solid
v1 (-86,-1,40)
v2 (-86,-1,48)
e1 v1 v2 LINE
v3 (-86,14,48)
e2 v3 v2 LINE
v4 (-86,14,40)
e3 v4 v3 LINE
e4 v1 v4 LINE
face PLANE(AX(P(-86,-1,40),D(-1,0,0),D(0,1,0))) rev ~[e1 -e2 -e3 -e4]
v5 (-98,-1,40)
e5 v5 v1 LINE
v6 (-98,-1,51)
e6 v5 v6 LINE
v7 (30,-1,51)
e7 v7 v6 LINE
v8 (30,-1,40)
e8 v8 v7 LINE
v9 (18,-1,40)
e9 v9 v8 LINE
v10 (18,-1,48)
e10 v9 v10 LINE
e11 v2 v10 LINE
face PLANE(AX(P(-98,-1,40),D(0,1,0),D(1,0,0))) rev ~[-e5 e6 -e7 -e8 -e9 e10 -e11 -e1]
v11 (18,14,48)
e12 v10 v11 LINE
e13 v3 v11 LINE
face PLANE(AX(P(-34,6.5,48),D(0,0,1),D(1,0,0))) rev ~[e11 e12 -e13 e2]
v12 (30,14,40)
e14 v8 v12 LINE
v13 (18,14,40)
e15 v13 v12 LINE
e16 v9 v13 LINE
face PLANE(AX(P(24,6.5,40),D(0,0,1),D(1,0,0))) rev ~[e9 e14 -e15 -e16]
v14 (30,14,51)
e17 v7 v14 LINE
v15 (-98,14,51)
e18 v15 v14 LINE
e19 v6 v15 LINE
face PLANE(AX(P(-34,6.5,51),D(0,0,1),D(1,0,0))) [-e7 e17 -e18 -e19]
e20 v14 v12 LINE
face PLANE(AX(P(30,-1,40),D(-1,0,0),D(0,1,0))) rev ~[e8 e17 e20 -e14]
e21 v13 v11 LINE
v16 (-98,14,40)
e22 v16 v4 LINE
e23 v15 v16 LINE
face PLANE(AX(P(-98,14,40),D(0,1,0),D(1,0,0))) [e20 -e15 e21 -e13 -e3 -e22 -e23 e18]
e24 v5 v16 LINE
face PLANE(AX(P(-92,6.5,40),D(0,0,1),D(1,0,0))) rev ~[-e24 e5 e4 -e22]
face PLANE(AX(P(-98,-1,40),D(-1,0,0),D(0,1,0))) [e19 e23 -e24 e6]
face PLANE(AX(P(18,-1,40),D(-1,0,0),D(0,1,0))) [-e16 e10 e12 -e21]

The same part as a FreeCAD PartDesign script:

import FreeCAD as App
import Part
import Sketcher
Q = App.Units.Quantity

doc = App.newDocument("Part")
body = doc.addObject("PartDesign::Body", "Body")

# Sketch on XY plane
sketch1 = doc.addObject("Sketcher::SketchObject", "Sketch")
body.addObject(sketch1)
sketch1.AttachmentSupport = (doc.XY_Plane, [""])
sketch1.MapMode = "FlatFace"
sketch1.AttachmentOffset = App.Placement(App.Vector(0, 0, 48), App.Rotation())
sketch1.addGeometry(Part.LineSegment(App.Vector(-98, -12, 0), App.Vector(-98, -27, 0)), False)
sketch1.addGeometry(Part.LineSegment(App.Vector(-98, -27, 0), App.Vector(30, -27, 0)), False)
sketch1.addGeometry(Part.LineSegment(App.Vector(30, -27, 0), App.Vector(30, -12, 0)), False)
sketch1.addGeometry(Part.LineSegment(App.Vector(30, -12, 0), App.Vector(-98, -12, 0)), False)
sketch1.addConstraint(Sketcher.Constraint("Coincident", 0, 2, 1, 1))
sketch1.addConstraint(Sketcher.Constraint("Coincident", 1, 2, 2, 1))
sketch1.addConstraint(Sketcher.Constraint("Coincident", 2, 2, 3, 1))
sketch1.addConstraint(Sketcher.Constraint("Coincident", 3, 2, 0, 1))
sketch1.addConstraint(Sketcher.Constraint("Vertical", 0))
sketch1.addConstraint(Sketcher.Constraint("Horizontal", 1))
sketch1.addConstraint(Sketcher.Constraint("Vertical", 2))
sketch1.addConstraint(Sketcher.Constraint("Horizontal", 3))
sketch1.addConstraint(Sketcher.Constraint("DistanceX", 1, 1, 1, 2, Q("128 mm")))
sketch1.addConstraint(Sketcher.Constraint("DistanceY", 0, 2, 0, 1, Q("15 mm")))
sketch1.addConstraint(Sketcher.Constraint("DistanceX", 0, 2, -1, 1, Q("98 mm")))
sketch1.addConstraint(Sketcher.Constraint("DistanceY", 0, 2, -1, 1, Q("27 mm")))
pad1 = doc.addObject("PartDesign::Pad", "Pad")
body.addObject(pad1)
pad1.Profile = sketch1
pad1.Length = 3
body2 = doc.addObject("PartDesign::Body", "Body001")

# Sketch on XY plane
sketch2 = doc.addObject("Sketcher::SketchObject", "Sketch001")
body2.addObject(sketch2)
sketch2.AttachmentSupport = (doc.getObject("XY_Plane001"), [""])
sketch2.MapMode = "FlatFace"
sketch2.AttachmentOffset = App.Placement(App.Vector(0, 0, 40), App.Rotation())
sketch2.addGeometry(Part.LineSegment(App.Vector(-98, -12, 0), App.Vector(-98, -27, 0)), False)
sketch2.addGeometry(Part.LineSegment(App.Vector(-98, -27, 0), App.Vector(-86, -27, 0)), False)
sketch2.addGeometry(Part.LineSegment(App.Vector(-86, -27, 0), App.Vector(-86, -12, 0)), False)
sketch2.addGeometry(Part.LineSegment(App.Vector(-86, -12, 0), App.Vector(-98, -12, 0)), False)
sketch2.addConstraint(Sketcher.Constraint("Coincident", 0, 2, 1, 1))
sketch2.addConstraint(Sketcher.Constraint("Coincident", 1, 2, 2, 1))
sketch2.addConstraint(Sketcher.Constraint("Coincident", 2, 2, 3, 1))
sketch2.addConstraint(Sketcher.Constraint("Coincident", 3, 2, 0, 1))
sketch2.addConstraint(Sketcher.Constraint("Vertical", 0))
sketch2.addConstraint(Sketcher.Constraint("Horizontal", 1))
sketch2.addConstraint(Sketcher.Constraint("Vertical", 2))
sketch2.addConstraint(Sketcher.Constraint("Horizontal", 3))
sketch2.addConstraint(Sketcher.Constraint("DistanceX", 1, 1, 1, 2, Q("12 mm")))
sketch2.addConstraint(Sketcher.Constraint("DistanceY", 0, 2, 0, 1, Q("15 mm")))
sketch2.addConstraint(Sketcher.Constraint("DistanceX", 0, 2, -1, 1, Q("98 mm")))
sketch2.addConstraint(Sketcher.Constraint("DistanceY", 0, 2, -1, 1, Q("27 mm")))
pad2 = doc.addObject("PartDesign::Pad", "Pad001")
body2.addObject(pad2)
pad2.Profile = sketch2
pad2.Length = 11
body3 = doc.addObject("PartDesign::Body", "Body002")

# Sketch on XY plane
sketch3 = doc.addObject("Sketcher::SketchObject", "Sketch002")
body3.addObject(sketch3)
sketch3.AttachmentSupport = (doc.getObject("XY_Plane002"), [""])
sketch3.MapMode = "FlatFace"
sketch3.AttachmentOffset = App.Placement(App.Vector(0, 0, 40), App.Rotation())
sketch3.addGeometry(Part.LineSegment(App.Vector(18, -12, 0), App.Vector(18, -27, 0)), False)
sketch3.addGeometry(Part.LineSegment(App.Vector(18, -27, 0), App.Vector(30, -27, 0)), False)
sketch3.addGeometry(Part.LineSegment(App.Vector(30, -27, 0), App.Vector(30, -12, 0)), False)
sketch3.addGeometry(Part.LineSegment(App.Vector(30, -12, 0), App.Vector(18, -12, 0)), False)
sketch3.addConstraint(Sketcher.Constraint("Coincident", 0, 2, 1, 1))
sketch3.addConstraint(Sketcher.Constraint("Coincident", 1, 2, 2, 1))
sketch3.addConstraint(Sketcher.Constraint("Coincident", 2, 2, 3, 1))
sketch3.addConstraint(Sketcher.Constraint("Coincident", 3, 2, 0, 1))
sketch3.addConstraint(Sketcher.Constraint("Vertical", 0))
sketch3.addConstraint(Sketcher.Constraint("Horizontal", 1))
sketch3.addConstraint(Sketcher.Constraint("Vertical", 2))
sketch3.addConstraint(Sketcher.Constraint("Horizontal", 3))
sketch3.addConstraint(Sketcher.Constraint("DistanceX", 1, 1, 1, 2, Q("12 mm")))
sketch3.addConstraint(Sketcher.Constraint("DistanceY", 0, 2, 0, 1, Q("15 mm")))
sketch3.addConstraint(Sketcher.Constraint("DistanceX", -1, 1, 0, 2, Q("18 mm")))
sketch3.addConstraint(Sketcher.Constraint("DistanceY", 0, 2, -1, 1, Q("27 mm")))
pad3 = doc.addObject("PartDesign::Pad", "Pad002")
body3.addObject(pad3)
pad3.Profile = sketch3
pad3.Length = 11
doc.recompute()

boolean = doc.addObject("PartDesign::Boolean", "Boolean")
body3.addObject(boolean)
boolean.Type = "Fuse"
boolean.addObjects([body])
doc.recompute()

boolean2 = doc.addObject("PartDesign::Boolean", "Boolean001")
body3.addObject(boolean2)
boolean2.Type = "Fuse"
boolean2.addObjects([body2])
body4 = doc.addObject("PartDesign::Body", "Body003")
doc.recompute()

body3.Placement = App.Placement(App.Vector(0, 26, 0), App.Rotation(App.Vector(0, 0, 1), 0))
boolean3 = doc.addObject("PartDesign::Boolean", "Boolean002")
body4.addObject(boolean3)
boolean3.Type = "Fuse"
boolean3.addObjects([body3])

doc.recompute()
